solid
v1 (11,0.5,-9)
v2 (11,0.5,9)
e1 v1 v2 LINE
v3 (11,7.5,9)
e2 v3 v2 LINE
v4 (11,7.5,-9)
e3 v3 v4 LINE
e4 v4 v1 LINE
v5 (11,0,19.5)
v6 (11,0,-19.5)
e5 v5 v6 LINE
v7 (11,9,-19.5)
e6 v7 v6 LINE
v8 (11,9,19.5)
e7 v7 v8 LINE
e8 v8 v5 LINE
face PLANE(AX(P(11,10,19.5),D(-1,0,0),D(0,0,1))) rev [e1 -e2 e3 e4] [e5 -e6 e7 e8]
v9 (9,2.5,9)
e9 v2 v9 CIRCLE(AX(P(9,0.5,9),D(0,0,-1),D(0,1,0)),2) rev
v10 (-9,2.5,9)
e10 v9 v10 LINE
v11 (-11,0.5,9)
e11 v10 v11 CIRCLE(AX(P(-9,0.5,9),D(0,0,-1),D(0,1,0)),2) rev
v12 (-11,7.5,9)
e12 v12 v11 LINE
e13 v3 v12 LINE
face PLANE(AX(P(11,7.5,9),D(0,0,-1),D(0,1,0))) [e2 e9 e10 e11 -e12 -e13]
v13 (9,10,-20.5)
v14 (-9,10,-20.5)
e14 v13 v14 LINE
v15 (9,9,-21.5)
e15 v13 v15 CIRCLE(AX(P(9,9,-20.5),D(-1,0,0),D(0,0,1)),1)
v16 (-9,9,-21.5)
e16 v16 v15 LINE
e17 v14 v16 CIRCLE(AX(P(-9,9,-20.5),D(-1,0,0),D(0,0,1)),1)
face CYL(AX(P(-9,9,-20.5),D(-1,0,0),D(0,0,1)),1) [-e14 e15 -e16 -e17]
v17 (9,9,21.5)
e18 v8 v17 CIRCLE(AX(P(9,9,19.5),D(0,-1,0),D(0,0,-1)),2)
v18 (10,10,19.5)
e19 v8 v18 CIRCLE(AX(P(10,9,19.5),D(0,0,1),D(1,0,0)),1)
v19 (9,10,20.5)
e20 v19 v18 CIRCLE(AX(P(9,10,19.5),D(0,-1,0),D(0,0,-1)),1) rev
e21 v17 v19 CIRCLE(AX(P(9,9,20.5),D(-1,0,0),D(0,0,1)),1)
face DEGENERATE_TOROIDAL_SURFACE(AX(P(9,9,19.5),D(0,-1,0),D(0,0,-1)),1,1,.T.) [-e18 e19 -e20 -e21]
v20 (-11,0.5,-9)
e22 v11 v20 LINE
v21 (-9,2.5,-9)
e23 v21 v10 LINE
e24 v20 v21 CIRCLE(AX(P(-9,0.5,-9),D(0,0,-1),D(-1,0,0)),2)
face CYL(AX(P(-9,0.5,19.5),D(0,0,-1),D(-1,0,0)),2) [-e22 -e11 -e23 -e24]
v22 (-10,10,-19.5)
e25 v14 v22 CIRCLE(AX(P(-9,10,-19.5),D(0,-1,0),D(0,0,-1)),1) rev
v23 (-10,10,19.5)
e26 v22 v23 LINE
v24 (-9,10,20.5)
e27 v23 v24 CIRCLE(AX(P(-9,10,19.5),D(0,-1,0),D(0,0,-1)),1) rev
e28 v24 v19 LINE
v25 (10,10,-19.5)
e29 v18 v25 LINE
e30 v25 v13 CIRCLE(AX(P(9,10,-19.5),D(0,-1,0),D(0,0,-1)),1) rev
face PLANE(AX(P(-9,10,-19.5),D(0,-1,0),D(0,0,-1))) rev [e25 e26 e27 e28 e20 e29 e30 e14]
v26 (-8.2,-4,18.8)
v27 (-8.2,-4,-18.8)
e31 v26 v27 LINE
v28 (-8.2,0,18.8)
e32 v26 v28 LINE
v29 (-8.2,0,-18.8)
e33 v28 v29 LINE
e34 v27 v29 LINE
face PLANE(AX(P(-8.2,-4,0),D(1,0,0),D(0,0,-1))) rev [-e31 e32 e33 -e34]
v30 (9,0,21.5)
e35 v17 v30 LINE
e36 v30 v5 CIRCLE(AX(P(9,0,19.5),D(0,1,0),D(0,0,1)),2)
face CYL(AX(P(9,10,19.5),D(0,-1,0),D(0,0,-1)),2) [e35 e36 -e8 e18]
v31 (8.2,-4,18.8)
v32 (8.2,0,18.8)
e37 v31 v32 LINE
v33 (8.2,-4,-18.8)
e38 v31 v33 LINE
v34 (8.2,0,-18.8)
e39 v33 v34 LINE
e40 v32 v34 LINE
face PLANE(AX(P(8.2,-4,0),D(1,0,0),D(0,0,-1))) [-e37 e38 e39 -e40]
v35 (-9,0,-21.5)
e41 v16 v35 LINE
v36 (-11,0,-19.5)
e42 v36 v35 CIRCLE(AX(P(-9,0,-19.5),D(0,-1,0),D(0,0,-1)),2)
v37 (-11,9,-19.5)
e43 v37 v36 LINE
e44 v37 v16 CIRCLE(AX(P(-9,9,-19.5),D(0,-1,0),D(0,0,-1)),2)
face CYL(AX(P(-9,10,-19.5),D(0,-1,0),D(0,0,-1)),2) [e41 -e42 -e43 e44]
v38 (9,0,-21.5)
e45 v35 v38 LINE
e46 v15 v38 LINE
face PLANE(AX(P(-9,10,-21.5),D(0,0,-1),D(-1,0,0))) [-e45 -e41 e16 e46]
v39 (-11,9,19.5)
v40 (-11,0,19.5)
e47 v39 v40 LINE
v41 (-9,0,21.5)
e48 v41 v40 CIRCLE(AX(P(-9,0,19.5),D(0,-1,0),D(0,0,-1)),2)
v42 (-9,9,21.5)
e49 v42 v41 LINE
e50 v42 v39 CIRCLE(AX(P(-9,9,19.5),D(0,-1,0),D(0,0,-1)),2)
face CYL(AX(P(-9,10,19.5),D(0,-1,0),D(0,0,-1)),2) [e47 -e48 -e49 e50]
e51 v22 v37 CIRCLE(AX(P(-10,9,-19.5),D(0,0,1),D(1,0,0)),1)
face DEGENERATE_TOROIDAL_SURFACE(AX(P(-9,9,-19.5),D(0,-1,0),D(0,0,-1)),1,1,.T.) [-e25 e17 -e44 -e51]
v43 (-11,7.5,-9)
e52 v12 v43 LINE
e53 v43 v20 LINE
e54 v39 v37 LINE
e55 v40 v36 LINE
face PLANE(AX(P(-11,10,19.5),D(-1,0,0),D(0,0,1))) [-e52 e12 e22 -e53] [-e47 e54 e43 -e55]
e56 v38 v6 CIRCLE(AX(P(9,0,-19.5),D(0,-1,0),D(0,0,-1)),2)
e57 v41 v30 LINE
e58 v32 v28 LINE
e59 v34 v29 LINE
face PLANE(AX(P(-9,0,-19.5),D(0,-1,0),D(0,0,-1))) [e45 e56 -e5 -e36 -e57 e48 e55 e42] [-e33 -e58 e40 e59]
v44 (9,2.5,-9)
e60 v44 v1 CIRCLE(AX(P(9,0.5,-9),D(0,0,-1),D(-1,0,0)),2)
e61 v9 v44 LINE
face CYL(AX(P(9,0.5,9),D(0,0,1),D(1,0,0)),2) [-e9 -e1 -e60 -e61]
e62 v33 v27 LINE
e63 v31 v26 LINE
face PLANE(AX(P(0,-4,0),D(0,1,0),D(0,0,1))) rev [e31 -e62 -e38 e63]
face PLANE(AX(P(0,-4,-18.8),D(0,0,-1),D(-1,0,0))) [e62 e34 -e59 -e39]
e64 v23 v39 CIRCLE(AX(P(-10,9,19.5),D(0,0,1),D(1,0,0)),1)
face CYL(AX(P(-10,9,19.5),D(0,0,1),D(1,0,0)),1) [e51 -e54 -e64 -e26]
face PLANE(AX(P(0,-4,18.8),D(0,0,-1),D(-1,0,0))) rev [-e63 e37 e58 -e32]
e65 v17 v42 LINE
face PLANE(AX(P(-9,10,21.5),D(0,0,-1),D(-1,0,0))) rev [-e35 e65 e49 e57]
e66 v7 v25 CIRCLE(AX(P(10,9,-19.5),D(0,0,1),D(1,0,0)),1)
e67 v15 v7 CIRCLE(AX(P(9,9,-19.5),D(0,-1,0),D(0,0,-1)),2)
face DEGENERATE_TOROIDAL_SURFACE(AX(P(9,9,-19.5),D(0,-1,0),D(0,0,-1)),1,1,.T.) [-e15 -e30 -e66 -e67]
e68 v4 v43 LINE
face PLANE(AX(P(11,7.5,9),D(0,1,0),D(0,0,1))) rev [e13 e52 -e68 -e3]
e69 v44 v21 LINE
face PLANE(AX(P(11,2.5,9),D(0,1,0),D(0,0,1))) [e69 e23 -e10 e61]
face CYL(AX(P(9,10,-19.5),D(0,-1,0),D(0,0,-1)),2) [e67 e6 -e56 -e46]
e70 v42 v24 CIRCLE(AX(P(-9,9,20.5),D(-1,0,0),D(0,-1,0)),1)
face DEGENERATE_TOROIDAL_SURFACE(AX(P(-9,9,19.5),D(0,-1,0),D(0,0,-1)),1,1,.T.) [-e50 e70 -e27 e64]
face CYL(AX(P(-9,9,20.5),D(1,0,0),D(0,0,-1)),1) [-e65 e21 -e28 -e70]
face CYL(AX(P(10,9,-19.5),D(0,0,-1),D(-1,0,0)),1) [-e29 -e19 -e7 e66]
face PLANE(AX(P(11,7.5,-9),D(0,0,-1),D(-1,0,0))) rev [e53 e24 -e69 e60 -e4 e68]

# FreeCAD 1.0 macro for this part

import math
import FreeCAD as App
import Part
import Sketcher

V = App.Vector
Q = App.Units.Quantity


def edges_at(feature, points):
    """Names of the edges that pass closest to the given points."""
    edges = feature.Shape.Edges
    near = lambda p: min(range(len(edges)), key=lambda i: edges[i].distToShape(Part.Vertex(*p))[0])
    return sorted({f"Edge{near(p) + 1}" for p in points})

doc = App.newDocument("Part")
body = doc.addObject("PartDesign::Body", "Body")

# Sketch on XZ plane
sketch1 = doc.addObject("Sketcher::SketchObject", "Sketch")
body.addObject(sketch1)
sketch1.AttachmentSupport = (doc.XZ_Plane, [""])
sketch1.MapMode = "FlatFace"
sketch1.addGeometry(Part.LineSegment(V(-9, 21.5, 0), V(9, 21.5, 0)), False)
sketch1.addGeometry(Part.ArcOfCircle(Part.Circle(V(9, 19.5, 0), V(0, 0, 1), 2), math.radians(0), math.radians(90)), False)
sketch1.addGeometry(Part.LineSegment(V(11, 19.5, 0), V(11, -19.5, 0)), False)
sketch1.addGeometry(Part.ArcOfCircle(Part.Circle(V(9, -19.5, 0), V(0, 0, 1), 2), math.radians(-90), math.radians(0)), False)
sketch1.addGeometry(Part.LineSegment(V(9, -21.5, 0), V(-9, -21.5, 0)), False)
sketch1.addGeometry(Part.ArcOfCircle(Part.Circle(V(-9, -19.5, 0), V(0, 0, 1), 2), math.radians(-180), math.radians(-90)), False)
sketch1.addGeometry(Part.LineSegment(V(-11, -19.5, 0), V(-11, 19.5, 0)), False)
sketch1.addGeometry(Part.ArcOfCircle(Part.Circle(V(-9, 19.5, 0), V(0, 0, 1), 2), math.radians(90), math.radians(180)), False)
sketch1.addConstraint(Sketcher.Constraint("Tangent", 0, 2, 1, 2))
sketch1.addConstraint(Sketcher.Constraint("Tangent", 1, 1, 2, 1))
sketch1.addConstraint(Sketcher.Constraint("Tangent", 2, 2, 3, 2))
sketch1.addConstraint(Sketcher.Constraint("Tangent", 3, 1, 4, 1))
sketch1.addConstraint(Sketcher.Constraint("Tangent", 4, 2, 5, 2))
sketch1.addConstraint(Sketcher.Constraint("Tangent", 5, 1, 6, 1))
sketch1.addConstraint(Sketcher.Constraint("Tangent", 6, 2, 7, 2))
sketch1.addConstraint(Sketcher.Constraint("Tangent", 7, 1, 0, 1))
sketch1.addConstraint(Sketcher.Constraint("Horizontal", 0))
sketch1.addConstraint(Sketcher.Constraint("Vertical", 2))
sketch1.addConstraint(Sketcher.Constraint("Horizontal", 4))
sketch1.addConstraint(Sketcher.Constraint("Vertical", 6))
sketch1.addConstraint(Sketcher.Constraint("Equal", 1, 3))
sketch1.addConstraint(Sketcher.Constraint("Equal", 3, 5))
sketch1.addConstraint(Sketcher.Constraint("Equal", 5, 7))
sketch1.addConstraint(Sketcher.Constraint("Symmetric", 1, 3, 5, 3, -1, 1))
sketch1.addConstraint(Sketcher.Constraint("Radius", 1, Q("2 mm")))
sketch1.addConstraint(Sketcher.Constraint("DistanceX", 0, 1, 0, 2, Q("18 mm")))
sketch1.addConstraint(Sketcher.Constraint("DistanceY", 2, 2, 2, 1, Q("39 mm")))
pad1 = doc.addObject("PartDesign::Pad", "Pad")
body.addObject(pad1)
pad1.Profile = sketch1
pad1.Length = 10
pad1.Reversed = True

# Sketch on XZ plane
sketch2 = doc.addObject("Sketcher::SketchObject", "Sketch001")
body.addObject(sketch2)
sketch2.AttachmentSupport = (doc.XZ_Plane, [""])
sketch2.MapMode = "FlatFace"
sketch2.addGeometry(Part.LineSegment(V(-8.2, -18.8, 0), V(-8.2, 18.8, 0)), False)
sketch2.addGeometry(Part.LineSegment(V(-8.2, 18.8, 0), V(8.2, 18.8, 0)), False)
sketch2.addGeometry(Part.LineSegment(V(8.2, 18.8, 0), V(8.2, -18.8, 0)), False)
sketch2.addGeometry(Part.LineSegment(V(8.2, -18.8, 0), V(-8.2, -18.8, 0)), False)
sketch2.addConstraint(Sketcher.Constraint("Coincident", 0, 2, 1, 1))
sketch2.addConstraint(Sketcher.Constraint("Coincident", 1, 2, 2, 1))
sketch2.addConstraint(Sketcher.Constraint("Coincident", 2, 2, 3, 1))
sketch2.addConstraint(Sketcher.Constraint("Coincident", 3, 2, 0, 1))
sketch2.addConstraint(Sketcher.Constraint("Vertical", 0))
sketch2.addConstraint(Sketcher.Constraint("Horizontal", 1))
sketch2.addConstraint(Sketcher.Constraint("Vertical", 2))
sketch2.addConstraint(Sketcher.Constraint("Horizontal", 3))
sketch2.addConstraint(Sketcher.Constraint("Symmetric", 0, 2, 2, 2, -1, 1))
sketch2.addConstraint(Sketcher.Constraint("DistanceX", 1, 1, 1, 2, Q("16.4 mm")))
sketch2.addConstraint(Sketcher.Constraint("DistanceY", 0, 1, 0, 2, Q("37.6 mm")))
pad2 = doc.addObject("PartDesign::Pad", "Pad001")
body.addObject(pad2)
pad2.Profile = sketch2
pad2.Length = 4

# Sketch on YZ plane
sketch3 = doc.addObject("Sketcher::SketchObject", "Sketch002")
body.addObject(sketch3)
sketch3.AttachmentSupport = (doc.YZ_Plane, [""])
sketch3.MapMode = "FlatFace"
sketch3.AttachmentOffset = App.Placement(V(0, 0, -11), App.Rotation())
sketch3.addGeometry(Part.LineSegment(V(7.5, 9, 0), V(2.5, 9, 0)), False)
sketch3.addGeometry(Part.LineSegment(V(2.5, 9, 0), V(2.5, -9, 0)), False)
sketch3.addGeometry(Part.LineSegment(V(2.5, -9, 0), V(7.5, -9, 0)), False)
sketch3.addGeometry(Part.LineSegment(V(7.5, -9, 0), V(7.5, 9, 0)), False)
sketch3.addConstraint(Sketcher.Constraint("Coincident", 0, 2, 1, 1))
sketch3.addConstraint(Sketcher.Constraint("Coincident", 1, 2, 2, 1))
sketch3.addConstraint(Sketcher.Constraint("Coincident", 2, 2, 3, 1))
sketch3.addConstraint(Sketcher.Constraint("Coincident", 3, 2, 0, 1))
sketch3.addConstraint(Sketcher.Constraint("Horizontal", 0))
sketch3.addConstraint(Sketcher.Constraint("Vertical", 1))
sketch3.addConstraint(Sketcher.Constraint("Horizontal", 2))
sketch3.addConstraint(Sketcher.Constraint("Vertical", 3))
sketch3.addConstraint(Sketcher.Constraint("DistanceX", 0, 2, 0, 1, Q("5 mm")))
sketch3.addConstraint(Sketcher.Constraint("DistanceY", 1, 2, 1, 1, Q("18 mm")))
sketch3.addConstraint(Sketcher.Constraint("DistanceY", -1, 1, 0, 2, Q("9 mm")))
sketch3.addConstraint(Sketcher.Constraint("DistanceX", -1, 1, 0, 2, Q("2.5 mm")))
pocket1 = doc.addObject("PartDesign::Pocket", "Pocket")
body.addObject(pocket1)
pocket1.Profile = sketch3
pocket1.Type = "ThroughAll"
pocket1.Reversed = True
doc.recompute()

fillet = doc.addObject("PartDesign::Fillet", "Fillet")
body.addObject(fillet)
fillet.Base = (pocket1, edges_at(pocket1, [(-11, 2.5, 0), (11, 2.5, 0)]))
fillet.Radius = 2
doc.recompute()

fillet2 = doc.addObject("PartDesign::Fillet", "Fillet001")
body.addObject(fillet2)
fillet2.Base = (fillet, edges_at(fillet, [
    (10.414, 10, -20.914),
    (11, 10, 0),
    (10.414, 10, 20.914),
    (0, 10, 21.5),
    (-10.414, 10, 20.914),
    (-11, 10, 0),
    (-10.414, 10, -20.914),
    (0, 10, -21.5),
]))
fillet2.Radius = 1

doc.recompute()
